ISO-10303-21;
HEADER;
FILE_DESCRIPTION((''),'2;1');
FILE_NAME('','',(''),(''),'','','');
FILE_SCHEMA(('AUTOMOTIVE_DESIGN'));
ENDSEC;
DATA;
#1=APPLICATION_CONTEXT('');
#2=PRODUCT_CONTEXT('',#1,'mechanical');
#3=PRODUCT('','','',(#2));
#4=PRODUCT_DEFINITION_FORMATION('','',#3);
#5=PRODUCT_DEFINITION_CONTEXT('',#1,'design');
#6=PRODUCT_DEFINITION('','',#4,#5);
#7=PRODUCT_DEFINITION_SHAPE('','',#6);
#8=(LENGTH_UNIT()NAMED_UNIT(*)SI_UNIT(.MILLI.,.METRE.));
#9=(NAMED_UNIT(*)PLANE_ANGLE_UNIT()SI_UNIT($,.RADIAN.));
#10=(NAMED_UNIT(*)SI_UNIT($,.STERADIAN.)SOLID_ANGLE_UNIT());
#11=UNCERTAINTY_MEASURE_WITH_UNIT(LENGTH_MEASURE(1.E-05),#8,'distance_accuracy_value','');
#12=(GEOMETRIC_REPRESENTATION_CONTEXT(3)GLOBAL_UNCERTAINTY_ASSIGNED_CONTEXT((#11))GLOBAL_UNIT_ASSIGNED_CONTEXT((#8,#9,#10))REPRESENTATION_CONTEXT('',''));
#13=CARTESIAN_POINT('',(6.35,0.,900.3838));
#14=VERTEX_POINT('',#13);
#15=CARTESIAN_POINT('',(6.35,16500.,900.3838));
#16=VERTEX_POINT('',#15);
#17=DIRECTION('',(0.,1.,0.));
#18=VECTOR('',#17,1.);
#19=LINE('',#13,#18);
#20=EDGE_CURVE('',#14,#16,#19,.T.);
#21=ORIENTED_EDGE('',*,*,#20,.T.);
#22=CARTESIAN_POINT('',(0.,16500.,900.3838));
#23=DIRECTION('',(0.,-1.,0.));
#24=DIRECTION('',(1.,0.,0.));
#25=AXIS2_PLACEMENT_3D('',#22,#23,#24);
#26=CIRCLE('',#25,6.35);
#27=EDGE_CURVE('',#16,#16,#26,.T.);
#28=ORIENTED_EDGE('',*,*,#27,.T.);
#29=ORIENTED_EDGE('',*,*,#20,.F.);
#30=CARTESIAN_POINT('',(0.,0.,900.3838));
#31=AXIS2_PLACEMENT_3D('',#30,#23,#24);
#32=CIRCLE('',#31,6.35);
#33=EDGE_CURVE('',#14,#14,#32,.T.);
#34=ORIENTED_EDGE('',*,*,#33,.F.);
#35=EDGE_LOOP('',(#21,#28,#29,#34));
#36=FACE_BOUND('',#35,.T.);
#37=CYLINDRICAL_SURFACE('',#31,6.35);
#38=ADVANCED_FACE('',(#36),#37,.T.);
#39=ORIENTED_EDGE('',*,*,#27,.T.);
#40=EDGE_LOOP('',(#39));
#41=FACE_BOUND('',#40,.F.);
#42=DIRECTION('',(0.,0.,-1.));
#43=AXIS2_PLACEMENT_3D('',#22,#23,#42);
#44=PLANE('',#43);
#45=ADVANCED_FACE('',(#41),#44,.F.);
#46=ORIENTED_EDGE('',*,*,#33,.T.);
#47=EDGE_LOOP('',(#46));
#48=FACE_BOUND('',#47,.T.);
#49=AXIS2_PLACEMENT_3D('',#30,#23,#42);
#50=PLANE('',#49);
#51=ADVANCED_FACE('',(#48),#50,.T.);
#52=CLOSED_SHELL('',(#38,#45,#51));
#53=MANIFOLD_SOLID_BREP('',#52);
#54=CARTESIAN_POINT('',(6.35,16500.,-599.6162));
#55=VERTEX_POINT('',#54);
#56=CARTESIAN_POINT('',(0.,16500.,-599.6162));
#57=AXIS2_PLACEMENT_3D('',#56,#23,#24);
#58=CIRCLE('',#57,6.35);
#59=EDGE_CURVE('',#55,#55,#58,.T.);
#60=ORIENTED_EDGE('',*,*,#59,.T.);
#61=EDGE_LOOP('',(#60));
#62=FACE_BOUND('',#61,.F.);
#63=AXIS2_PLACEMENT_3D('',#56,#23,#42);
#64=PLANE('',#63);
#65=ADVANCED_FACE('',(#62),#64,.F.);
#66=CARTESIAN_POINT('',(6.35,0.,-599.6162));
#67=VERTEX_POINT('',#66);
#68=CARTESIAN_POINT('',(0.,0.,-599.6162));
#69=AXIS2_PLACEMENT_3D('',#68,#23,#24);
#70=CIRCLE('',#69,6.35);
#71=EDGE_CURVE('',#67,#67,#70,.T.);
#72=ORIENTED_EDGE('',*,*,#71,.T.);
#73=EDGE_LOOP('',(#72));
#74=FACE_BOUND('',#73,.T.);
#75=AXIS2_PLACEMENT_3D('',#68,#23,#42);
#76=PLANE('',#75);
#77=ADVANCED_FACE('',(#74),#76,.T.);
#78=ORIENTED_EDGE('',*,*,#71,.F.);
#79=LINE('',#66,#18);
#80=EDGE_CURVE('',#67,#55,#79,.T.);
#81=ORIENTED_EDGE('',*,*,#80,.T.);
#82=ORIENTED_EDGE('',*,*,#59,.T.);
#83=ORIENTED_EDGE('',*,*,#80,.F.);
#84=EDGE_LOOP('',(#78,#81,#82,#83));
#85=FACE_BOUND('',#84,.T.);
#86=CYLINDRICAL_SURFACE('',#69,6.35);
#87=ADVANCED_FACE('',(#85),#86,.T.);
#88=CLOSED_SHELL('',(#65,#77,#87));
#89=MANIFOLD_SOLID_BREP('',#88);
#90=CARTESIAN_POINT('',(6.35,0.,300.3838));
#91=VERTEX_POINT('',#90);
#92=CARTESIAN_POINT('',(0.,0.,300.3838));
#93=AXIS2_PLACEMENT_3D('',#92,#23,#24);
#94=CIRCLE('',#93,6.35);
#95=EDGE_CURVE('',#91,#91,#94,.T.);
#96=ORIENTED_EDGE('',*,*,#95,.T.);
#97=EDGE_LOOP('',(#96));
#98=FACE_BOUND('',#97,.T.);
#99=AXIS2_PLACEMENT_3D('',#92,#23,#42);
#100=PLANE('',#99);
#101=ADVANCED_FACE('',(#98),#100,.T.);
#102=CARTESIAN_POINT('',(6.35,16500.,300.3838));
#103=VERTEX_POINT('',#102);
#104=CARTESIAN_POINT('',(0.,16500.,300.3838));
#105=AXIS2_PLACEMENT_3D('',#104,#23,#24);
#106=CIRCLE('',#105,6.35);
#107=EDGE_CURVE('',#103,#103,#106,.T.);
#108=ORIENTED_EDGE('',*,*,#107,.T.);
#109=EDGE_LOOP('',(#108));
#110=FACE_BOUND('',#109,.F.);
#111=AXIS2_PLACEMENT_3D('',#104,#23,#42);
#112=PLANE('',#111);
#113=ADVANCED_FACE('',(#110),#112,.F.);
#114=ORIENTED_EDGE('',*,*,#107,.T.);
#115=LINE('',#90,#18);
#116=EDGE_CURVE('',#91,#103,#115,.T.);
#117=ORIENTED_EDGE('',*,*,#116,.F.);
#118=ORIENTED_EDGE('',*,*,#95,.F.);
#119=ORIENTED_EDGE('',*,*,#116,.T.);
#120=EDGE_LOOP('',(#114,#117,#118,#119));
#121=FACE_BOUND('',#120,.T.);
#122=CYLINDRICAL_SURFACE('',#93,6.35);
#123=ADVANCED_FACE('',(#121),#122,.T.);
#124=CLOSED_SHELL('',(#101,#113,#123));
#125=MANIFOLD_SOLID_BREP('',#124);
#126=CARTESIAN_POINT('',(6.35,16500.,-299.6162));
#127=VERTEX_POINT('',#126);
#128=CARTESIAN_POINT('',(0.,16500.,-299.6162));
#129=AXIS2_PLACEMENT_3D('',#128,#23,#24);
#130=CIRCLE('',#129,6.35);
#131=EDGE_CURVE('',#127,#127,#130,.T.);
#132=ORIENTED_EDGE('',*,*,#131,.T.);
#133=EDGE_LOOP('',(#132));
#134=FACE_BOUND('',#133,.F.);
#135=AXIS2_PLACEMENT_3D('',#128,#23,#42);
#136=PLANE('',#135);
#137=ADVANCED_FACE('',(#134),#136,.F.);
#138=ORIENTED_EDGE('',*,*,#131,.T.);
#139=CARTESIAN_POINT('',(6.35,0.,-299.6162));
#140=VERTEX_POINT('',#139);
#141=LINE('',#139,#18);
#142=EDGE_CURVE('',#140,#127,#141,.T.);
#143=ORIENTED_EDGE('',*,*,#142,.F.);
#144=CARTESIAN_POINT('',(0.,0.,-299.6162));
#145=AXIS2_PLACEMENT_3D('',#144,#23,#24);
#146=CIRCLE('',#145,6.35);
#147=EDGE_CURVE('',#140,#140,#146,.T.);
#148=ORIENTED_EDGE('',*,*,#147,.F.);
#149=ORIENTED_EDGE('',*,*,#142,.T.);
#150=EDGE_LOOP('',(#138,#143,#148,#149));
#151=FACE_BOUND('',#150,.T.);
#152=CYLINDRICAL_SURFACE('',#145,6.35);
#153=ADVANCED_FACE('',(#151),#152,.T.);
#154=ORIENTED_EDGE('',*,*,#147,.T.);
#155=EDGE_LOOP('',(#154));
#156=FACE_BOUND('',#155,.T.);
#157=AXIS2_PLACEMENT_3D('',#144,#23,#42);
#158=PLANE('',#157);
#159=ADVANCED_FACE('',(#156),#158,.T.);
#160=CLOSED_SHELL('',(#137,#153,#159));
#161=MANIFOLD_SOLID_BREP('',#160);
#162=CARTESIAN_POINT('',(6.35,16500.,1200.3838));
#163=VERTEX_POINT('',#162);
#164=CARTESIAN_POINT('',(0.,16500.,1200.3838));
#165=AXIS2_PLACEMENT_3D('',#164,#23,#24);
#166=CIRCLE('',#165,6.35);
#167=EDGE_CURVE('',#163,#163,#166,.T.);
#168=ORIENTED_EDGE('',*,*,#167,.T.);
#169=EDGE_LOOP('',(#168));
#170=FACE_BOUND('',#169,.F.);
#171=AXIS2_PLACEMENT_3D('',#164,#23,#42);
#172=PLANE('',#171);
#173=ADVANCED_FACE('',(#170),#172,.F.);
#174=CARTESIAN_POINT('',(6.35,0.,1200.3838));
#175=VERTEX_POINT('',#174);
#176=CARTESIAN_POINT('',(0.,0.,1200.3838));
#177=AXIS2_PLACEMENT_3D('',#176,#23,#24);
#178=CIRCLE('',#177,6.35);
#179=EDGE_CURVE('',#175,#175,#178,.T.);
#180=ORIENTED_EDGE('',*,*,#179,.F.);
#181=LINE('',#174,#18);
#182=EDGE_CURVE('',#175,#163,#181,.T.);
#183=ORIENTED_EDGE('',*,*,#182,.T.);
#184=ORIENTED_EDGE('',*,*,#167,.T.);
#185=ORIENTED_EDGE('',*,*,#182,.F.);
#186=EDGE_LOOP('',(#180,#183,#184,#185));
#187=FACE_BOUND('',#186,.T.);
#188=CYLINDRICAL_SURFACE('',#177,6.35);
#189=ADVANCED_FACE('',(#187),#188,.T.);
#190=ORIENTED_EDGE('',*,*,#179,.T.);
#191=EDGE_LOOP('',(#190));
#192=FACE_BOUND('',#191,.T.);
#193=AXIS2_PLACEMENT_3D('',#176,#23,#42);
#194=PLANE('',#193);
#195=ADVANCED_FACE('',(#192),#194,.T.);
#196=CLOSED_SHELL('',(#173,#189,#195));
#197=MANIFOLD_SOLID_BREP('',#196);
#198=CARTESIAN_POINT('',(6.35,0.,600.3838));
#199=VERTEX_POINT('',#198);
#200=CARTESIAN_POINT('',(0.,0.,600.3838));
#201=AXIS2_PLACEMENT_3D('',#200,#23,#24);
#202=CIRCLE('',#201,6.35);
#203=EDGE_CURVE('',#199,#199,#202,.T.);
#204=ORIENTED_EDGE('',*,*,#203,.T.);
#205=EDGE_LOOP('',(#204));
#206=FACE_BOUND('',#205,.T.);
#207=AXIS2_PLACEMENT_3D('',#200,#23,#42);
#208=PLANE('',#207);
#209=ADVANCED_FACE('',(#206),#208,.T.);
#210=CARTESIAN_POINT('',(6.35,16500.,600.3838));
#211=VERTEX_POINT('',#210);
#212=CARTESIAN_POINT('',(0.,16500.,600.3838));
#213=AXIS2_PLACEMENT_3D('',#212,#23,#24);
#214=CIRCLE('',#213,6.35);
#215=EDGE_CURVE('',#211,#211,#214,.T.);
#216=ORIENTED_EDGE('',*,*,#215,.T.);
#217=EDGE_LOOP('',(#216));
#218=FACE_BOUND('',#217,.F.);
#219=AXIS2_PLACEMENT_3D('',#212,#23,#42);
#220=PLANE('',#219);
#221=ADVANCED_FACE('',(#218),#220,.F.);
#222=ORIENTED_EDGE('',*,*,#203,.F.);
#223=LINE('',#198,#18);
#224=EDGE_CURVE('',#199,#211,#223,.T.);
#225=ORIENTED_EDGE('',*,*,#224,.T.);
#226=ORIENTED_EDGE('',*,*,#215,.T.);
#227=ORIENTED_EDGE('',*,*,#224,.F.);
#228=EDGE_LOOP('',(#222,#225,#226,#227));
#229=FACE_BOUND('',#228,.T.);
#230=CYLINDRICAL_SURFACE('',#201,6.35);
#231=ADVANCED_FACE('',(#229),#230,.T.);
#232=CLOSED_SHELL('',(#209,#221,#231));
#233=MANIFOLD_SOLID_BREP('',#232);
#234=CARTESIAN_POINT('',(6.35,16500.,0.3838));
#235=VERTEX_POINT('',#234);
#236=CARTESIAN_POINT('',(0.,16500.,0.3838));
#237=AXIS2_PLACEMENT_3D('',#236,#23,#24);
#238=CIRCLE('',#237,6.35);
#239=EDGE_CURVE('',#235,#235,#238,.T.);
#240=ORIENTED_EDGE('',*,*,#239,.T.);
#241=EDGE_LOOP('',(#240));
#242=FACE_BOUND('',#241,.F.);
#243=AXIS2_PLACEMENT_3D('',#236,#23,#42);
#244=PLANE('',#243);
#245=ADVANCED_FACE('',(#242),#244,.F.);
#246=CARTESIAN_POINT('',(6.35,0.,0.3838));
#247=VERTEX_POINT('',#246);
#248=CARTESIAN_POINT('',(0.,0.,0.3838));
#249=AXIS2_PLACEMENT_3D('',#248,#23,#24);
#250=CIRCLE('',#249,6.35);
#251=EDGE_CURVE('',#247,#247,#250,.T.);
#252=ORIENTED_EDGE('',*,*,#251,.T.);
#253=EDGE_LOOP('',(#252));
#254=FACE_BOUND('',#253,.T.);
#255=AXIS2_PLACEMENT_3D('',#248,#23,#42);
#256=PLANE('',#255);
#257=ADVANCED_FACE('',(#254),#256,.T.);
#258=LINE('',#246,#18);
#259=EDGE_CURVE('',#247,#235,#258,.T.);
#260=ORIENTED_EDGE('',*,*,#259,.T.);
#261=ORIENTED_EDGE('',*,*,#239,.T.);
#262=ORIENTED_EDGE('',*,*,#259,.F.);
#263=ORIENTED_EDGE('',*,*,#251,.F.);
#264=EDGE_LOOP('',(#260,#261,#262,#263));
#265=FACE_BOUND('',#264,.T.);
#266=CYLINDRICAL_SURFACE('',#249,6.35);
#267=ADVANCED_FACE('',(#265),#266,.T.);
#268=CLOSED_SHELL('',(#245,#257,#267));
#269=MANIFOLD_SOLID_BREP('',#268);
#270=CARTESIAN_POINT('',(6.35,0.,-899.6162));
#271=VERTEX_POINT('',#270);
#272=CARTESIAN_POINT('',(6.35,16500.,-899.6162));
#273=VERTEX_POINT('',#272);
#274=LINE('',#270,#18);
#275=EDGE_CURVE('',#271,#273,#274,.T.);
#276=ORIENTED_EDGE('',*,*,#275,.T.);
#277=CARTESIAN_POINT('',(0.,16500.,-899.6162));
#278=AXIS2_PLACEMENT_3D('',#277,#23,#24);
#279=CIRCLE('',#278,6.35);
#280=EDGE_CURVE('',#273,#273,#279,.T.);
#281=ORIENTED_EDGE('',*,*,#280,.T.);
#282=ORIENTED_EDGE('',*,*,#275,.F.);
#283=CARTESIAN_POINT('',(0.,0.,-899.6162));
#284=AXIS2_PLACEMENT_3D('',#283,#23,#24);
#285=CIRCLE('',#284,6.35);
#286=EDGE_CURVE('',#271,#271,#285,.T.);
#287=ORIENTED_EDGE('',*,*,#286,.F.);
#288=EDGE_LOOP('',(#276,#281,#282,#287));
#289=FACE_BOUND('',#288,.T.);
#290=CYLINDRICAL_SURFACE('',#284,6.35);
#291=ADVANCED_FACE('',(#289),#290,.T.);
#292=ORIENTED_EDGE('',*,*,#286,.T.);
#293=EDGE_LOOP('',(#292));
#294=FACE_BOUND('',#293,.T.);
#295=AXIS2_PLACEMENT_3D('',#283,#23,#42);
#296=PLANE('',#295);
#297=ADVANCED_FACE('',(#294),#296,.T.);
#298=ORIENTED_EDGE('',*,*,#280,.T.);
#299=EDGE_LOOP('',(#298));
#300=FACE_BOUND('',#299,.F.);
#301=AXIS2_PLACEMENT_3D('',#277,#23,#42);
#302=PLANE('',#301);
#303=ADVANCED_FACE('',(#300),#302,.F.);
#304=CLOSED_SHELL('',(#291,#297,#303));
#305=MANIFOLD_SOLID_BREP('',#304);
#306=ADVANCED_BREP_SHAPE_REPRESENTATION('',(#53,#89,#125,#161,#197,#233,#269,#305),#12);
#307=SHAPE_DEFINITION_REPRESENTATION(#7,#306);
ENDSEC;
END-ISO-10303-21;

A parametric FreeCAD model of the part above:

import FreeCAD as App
import Part
import Sketcher
from FreeCAD import Vector
Q = App.Units.Quantity

doc = App.newDocument("Part")
params = doc.addObject("Spreadsheet::Sheet", "Params")
for row, (alias, value) in enumerate([
    ("sketch1_diameter", "0.5 in"),
    ("pad1_length", "649.6062992 in"),
], start=1):
    params.set(f"A{row}", alias)
    params.set(f"B{row}", "=" + value)
    params.setAlias(f"B{row}", alias)

body = doc.addObject("PartDesign::Body", "Body")
body.AllowCompound = True

# Sketch on XZ plane
sketch1 = body.newObject("Sketcher::SketchObject", "Sketch")
sketch1.AttachmentSupport = (doc.getObject("XZ_Plane"), [""])
sketch1.MapMode = "FlatFace"
sketch1.addGeometry(Part.Circle(Vector(0, 1200, 0), Vector(0, 0, 1), 6), False)
sketch1.addGeometry(Part.Circle(Vector(0, 900, 0), Vector(0, 0, 1), 6), False)
sketch1.addGeometry(Part.Circle(Vector(0, 600, 0), Vector(0, 0, 1), 6), False)
sketch1.addGeometry(Part.Circle(Vector(0, 300, 0), Vector(0, 0, 1), 6), False)
sketch1.addGeometry(Part.Circle(Vector(0, 0, 0), Vector(0, 0, 1), 6), False)
sketch1.addGeometry(Part.Circle(Vector(0, -300, 0), Vector(0, 0, 1), 6), False)
sketch1.addGeometry(Part.Circle(Vector(0, -600, 0), Vector(0, 0, 1), 6), False)
sketch1.addGeometry(Part.Circle(Vector(0, -900, 0), Vector(0, 0, 1), 6), False)
sketch1.addConstraint(Sketcher.Constraint("Equal", 0, 1))
sketch1.addConstraint(Sketcher.Constraint("Equal", 1, 2))
sketch1.addConstraint(Sketcher.Constraint("Equal", 2, 3))
sketch1.addConstraint(Sketcher.Constraint("Equal", 3, 4))
sketch1.addConstraint(Sketcher.Constraint("Equal", 4, 5))
sketch1.addConstraint(Sketcher.Constraint("Equal", 5, 6))
sketch1.addConstraint(Sketcher.Constraint("Equal", 6, 7))
sketch1.addConstraint(Sketcher.Constraint("PointOnObject", 0, 3, -2))
sketch1.addConstraint(Sketcher.Constraint("PointOnObject", 1, 3, -2))
sketch1.addConstraint(Sketcher.Constraint("PointOnObject", 2, 3, -2))
sketch1.addConstraint(Sketcher.Constraint("PointOnObject", 3, 3, -2))
sketch1.addConstraint(Sketcher.Constraint("PointOnObject", 4, 3, -2))
sketch1.addConstraint(Sketcher.Constraint("PointOnObject", 5, 3, -2))
sketch1.addConstraint(Sketcher.Constraint("PointOnObject", 6, 3, -2))
sketch1.addConstraint(Sketcher.Constraint("PointOnObject", 7, 3, -2))
sketch1.addConstraint(Sketcher.Constraint("Diameter", 0, Q("0.5 in")))
sketch1.addConstraint(Sketcher.Constraint("DistanceY", -1, 1, 0, 3, Q("47.2592 in")))
sketch1.addConstraint(Sketcher.Constraint("DistanceY", -1, 1, 4, 3, Q("0.0151 in")))
sketch1.addConstraint(Sketcher.Constraint("DistanceY", 5, 3, 1, 3, Q("47.2441 in")))
sketch1.addConstraint(Sketcher.Constraint("DistanceY", 6, 3, 2, 3, Q("47.2441 in")))
sketch1.addConstraint(Sketcher.Constraint("DistanceY", 7, 3, 3, 3, Q("47.2441 in")))
sketch1.addConstraint(Sketcher.Constraint("DistanceY", -1, 1, 1, 3, 900.3838))
sketch1.addConstraint(Sketcher.Constraint("DistanceY", -1, 1, 2, 3, 600.3838))
sketch1.addConstraint(Sketcher.Constraint("DistanceY", -1, 1, 3, 3, 300.3838))
sketch1.setExpression("Constraints[15]", "Params.sketch1_diameter")
pad1 = body.newObject("PartDesign::Pad", "Pad")
pad1.Profile = sketch1
pad1.setExpression("Length", "Params.pad1_length")
pad1.Reversed = True

doc.recompute()
